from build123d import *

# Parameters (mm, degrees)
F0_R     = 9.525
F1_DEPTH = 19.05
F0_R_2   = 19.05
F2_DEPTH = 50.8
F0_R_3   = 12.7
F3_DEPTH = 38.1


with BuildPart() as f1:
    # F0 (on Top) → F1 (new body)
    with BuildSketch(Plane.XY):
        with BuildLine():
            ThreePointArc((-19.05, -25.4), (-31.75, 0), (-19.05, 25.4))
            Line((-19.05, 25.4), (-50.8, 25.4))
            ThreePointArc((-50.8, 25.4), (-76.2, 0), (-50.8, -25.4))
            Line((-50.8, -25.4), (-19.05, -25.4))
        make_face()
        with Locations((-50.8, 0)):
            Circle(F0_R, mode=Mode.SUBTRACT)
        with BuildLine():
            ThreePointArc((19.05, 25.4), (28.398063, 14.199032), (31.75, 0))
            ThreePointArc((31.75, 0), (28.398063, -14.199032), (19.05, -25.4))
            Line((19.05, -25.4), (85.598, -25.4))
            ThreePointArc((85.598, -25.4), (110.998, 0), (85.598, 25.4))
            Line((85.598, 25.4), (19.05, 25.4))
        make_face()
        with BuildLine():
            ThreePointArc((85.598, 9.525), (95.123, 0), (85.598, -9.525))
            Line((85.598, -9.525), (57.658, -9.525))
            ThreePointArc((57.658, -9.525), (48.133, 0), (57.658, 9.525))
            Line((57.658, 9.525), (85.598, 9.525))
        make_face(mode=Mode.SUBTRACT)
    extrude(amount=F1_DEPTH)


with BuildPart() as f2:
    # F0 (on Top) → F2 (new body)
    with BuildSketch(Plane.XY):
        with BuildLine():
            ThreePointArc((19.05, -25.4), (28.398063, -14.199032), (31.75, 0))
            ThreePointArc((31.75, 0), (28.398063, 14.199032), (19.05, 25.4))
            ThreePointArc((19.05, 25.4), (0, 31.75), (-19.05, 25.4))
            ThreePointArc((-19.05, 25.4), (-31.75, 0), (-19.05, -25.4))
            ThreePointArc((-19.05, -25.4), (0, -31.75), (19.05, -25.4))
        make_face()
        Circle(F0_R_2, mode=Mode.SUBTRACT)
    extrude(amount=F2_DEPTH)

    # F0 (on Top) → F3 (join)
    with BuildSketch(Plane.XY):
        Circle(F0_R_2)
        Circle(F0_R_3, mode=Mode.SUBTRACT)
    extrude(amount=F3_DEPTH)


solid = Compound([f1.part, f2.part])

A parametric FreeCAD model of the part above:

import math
import FreeCAD as App
import Part
import Sketcher
Q = App.Units.Quantity

doc = App.newDocument("Part")
body = doc.addObject("PartDesign::Body", "Body")
body.AllowCompound = True

# Sketch on XY plane
sketch1 = body.newObject("Sketcher::SketchObject", "Sketch")
sketch1.AttachmentSupport = (doc.getObject("XY_Plane"), [""])
sketch1.MapMode = "FlatFace"
sketch1.addGeometry([
    Part.ArcOfCircle(Part.Circle(App.Vector(0, 0, 0), App.Vector(0, 0, 1), 32), math.radians(127), math.radians(233)),  # 0
    Part.LineSegment(App.Vector(-19, 25, 0), App.Vector(-51, 25, 0)),  # 1
    Part.ArcOfCircle(Part.Circle(App.Vector(-51, 0, 0), App.Vector(0, 0, 1), 25), math.radians(90), math.radians(270)),  # 2
    Part.LineSegment(App.Vector(-51, -25, 0), App.Vector(-19, -25, 0)),  # 3
    Part.Circle(App.Vector(-51, 0, 0), App.Vector(0, 0, 1), 10),  # 4
    Part.ArcOfCircle(Part.Circle(App.Vector(0, 0, 0), App.Vector(0, 0, 1), 32), math.radians(0), math.radians(53)),  # 5
    Part.ArcOfCircle(Part.Circle(App.Vector(0, 0, 0), App.Vector(0, 0, 1), 32), math.radians(-53), math.radians(0)),  # 6
    Part.LineSegment(App.Vector(19, -25, 0), App.Vector(86, -25, 0)),  # 7
    Part.ArcOfCircle(Part.Circle(App.Vector(86, 0, 0), App.Vector(0, 0, 1), 25), math.radians(-90), math.radians(90)),  # 8
    Part.LineSegment(App.Vector(86, 25, 0), App.Vector(19, 25, 0)),  # 9
    Part.LineSegment(App.Vector(58, 10, 0), App.Vector(86, 10, 0)),  # 10
    Part.ArcOfCircle(Part.Circle(App.Vector(86, 0, 0), App.Vector(0, 0, 1), 10), math.radians(-90), math.radians(90)),  # 11
    Part.LineSegment(App.Vector(86, -10, 0), App.Vector(58, -10, 0)),  # 12
    Part.ArcOfCircle(Part.Circle(App.Vector(58, 0, 0), App.Vector(0, 0, 1), 10), math.radians(90), math.radians(270)),  # 13
], False)
sketch1.addConstraint([
    Sketcher.Constraint("Coincident", 0, 1, 1, 1),
    Sketcher.Constraint("Tangent", 1, 2, 2, 1),
    Sketcher.Constraint("Tangent", 2, 2, 3, 1),
    Sketcher.Constraint("Coincident", 3, 2, 0, 2),
    Sketcher.Constraint("Tangent", 5, 1, 6, 2),
    Sketcher.Constraint("Coincident", 6, 1, 7, 1),
    Sketcher.Constraint("Tangent", 7, 2, 8, 1),
    Sketcher.Constraint("Tangent", 8, 2, 9, 1),
    Sketcher.Constraint("Coincident", 9, 2, 5, 2),
    Sketcher.Constraint("Tangent", 10, 2, 11, 2),
    Sketcher.Constraint("Tangent", 11, 1, 12, 1),
    Sketcher.Constraint("Tangent", 12, 2, 13, 2),
    Sketcher.Constraint("Tangent", 13, 1, 10, 1),
    Sketcher.Constraint("Horizontal", 1),
    Sketcher.Constraint("Horizontal", 3),
    Sketcher.Constraint("Horizontal", 7),
    Sketcher.Constraint("Horizontal", 9),
    Sketcher.Constraint("Horizontal", 10),
    Sketcher.Constraint("Horizontal", 12),
    Sketcher.Constraint("Coincident", 0, 3, -1, 1),
    Sketcher.Constraint("Coincident", 5, 3, -1, 1),
    Sketcher.Constraint("Coincident", 4, 3, 2, 3),
    Sketcher.Constraint("Coincident", 11, 3, 8, 3),
    Sketcher.Constraint("Equal", 0, 5),
    Sketcher.Constraint("Equal", 5, 6),
    Sketcher.Constraint("Equal", 2, 8),
    Sketcher.Constraint("Equal", 4, 11),
    Sketcher.Constraint("PointOnObject", 2, 3, -1),
    Sketcher.Constraint("PointOnObject", 8, 3, -1),
    Sketcher.Constraint("PointOnObject", 5, 1, -1),
    Sketcher.Constraint("Radius", 2, Q("1 in")),
    Sketcher.Constraint("Diameter", 4, Q("0.75 in")),
    Sketcher.Constraint("Radius", 0, Q("1.25 in")),
    Sketcher.Constraint("DistanceX", 10, 1, 10, 2, Q("1.1 in")),
    Sketcher.Constraint("DistanceX", 2, 3, -1, 1, Q("2 in")),
    Sketcher.Constraint("DistanceX", 7, 1, 7, 2, Q("2.62 in")),
])
pad1 = body.newObject("PartDesign::Pad", "Pad")
pad1.Profile = sketch1
pad1.Length = Q("0.75 in")
body2 = doc.addObject("PartDesign::Body", "Body001")

# Sketch on XY plane
sketch2 = body2.newObject("Sketcher::SketchObject", "Sketch001")
sketch2.AttachmentSupport = (doc.getObject("XY_Plane001"), [""])
sketch2.MapMode = "FlatFace"
sketch2.addGeometry([
    Part.ArcOfCircle(Part.Circle(App.Vector(0, 0, 0), App.Vector(0, 0, 1), 32), math.radians(-53), math.radians(0)),
    Part.ArcOfCircle(Part.Circle(App.Vector(0, 0, 0), App.Vector(0, 0, 1), 32), math.radians(0), math.radians(53)),
    Part.ArcOfCircle(Part.Circle(App.Vector(0, 0, 0), App.Vector(0, 0, 1), 32), math.radians(53), math.radians(307)),
    Part.Circle(App.Vector(0, 0, 0), App.Vector(0, 0, 1), 19),
], False)
sketch2.addConstraint([
    Sketcher.Constraint("Tangent", 0, 2, 1, 1),
    Sketcher.Constraint("Tangent", 1, 2, 2, 1),
    Sketcher.Constraint("Tangent", 2, 2, 0, 1),
    Sketcher.Constraint("Coincident", 0, 3, -1, 1),
    Sketcher.Constraint("Coincident", 3, 3, -1, 1),
    Sketcher.Constraint("PointOnObject", 0, 2, -1),
    Sketcher.Constraint("Vertical", 1, 2, 2, 2),
    Sketcher.Constraint("Diameter", 3, Q("1.5 in")),
    Sketcher.Constraint("Radius", 0, Q("1.25 in")),
    Sketcher.Constraint("DistanceY", -1, 1, 1, 2, Q("1 in")),
])
pad2 = body2.newObject("PartDesign::Pad", "Pad001")
pad2.Profile = sketch2
pad2.Length = Q("2 in")

# Sketch on XY plane
sketch3 = body2.newObject("Sketcher::SketchObject", "Sketch002")
sketch3.AttachmentSupport = (doc.getObject("XY_Plane001"), [""])
sketch3.MapMode = "FlatFace"
sketch3.addGeometry([
    Part.Circle(App.Vector(0, 0, 0), App.Vector(0, 0, 1), 19),
    Part.Circle(App.Vector(0, 0, 0), App.Vector(0, 0, 1), 13),
], False)
sketch3.addConstraint([
    Sketcher.Constraint("Coincident", 0, 3, -1, 1),
    Sketcher.Constraint("Coincident", 1, 3, -1, 1),
    Sketcher.Constraint("Diameter", 1, Q("1 in")),
    Sketcher.Constraint("Diameter", 0, Q("1.5 in")),
])
pad3 = body2.newObject("PartDesign::Pad", "Pad002")
pad3.Profile = sketch3
pad3.Length = Q("1.5 in")

doc.recompute()
